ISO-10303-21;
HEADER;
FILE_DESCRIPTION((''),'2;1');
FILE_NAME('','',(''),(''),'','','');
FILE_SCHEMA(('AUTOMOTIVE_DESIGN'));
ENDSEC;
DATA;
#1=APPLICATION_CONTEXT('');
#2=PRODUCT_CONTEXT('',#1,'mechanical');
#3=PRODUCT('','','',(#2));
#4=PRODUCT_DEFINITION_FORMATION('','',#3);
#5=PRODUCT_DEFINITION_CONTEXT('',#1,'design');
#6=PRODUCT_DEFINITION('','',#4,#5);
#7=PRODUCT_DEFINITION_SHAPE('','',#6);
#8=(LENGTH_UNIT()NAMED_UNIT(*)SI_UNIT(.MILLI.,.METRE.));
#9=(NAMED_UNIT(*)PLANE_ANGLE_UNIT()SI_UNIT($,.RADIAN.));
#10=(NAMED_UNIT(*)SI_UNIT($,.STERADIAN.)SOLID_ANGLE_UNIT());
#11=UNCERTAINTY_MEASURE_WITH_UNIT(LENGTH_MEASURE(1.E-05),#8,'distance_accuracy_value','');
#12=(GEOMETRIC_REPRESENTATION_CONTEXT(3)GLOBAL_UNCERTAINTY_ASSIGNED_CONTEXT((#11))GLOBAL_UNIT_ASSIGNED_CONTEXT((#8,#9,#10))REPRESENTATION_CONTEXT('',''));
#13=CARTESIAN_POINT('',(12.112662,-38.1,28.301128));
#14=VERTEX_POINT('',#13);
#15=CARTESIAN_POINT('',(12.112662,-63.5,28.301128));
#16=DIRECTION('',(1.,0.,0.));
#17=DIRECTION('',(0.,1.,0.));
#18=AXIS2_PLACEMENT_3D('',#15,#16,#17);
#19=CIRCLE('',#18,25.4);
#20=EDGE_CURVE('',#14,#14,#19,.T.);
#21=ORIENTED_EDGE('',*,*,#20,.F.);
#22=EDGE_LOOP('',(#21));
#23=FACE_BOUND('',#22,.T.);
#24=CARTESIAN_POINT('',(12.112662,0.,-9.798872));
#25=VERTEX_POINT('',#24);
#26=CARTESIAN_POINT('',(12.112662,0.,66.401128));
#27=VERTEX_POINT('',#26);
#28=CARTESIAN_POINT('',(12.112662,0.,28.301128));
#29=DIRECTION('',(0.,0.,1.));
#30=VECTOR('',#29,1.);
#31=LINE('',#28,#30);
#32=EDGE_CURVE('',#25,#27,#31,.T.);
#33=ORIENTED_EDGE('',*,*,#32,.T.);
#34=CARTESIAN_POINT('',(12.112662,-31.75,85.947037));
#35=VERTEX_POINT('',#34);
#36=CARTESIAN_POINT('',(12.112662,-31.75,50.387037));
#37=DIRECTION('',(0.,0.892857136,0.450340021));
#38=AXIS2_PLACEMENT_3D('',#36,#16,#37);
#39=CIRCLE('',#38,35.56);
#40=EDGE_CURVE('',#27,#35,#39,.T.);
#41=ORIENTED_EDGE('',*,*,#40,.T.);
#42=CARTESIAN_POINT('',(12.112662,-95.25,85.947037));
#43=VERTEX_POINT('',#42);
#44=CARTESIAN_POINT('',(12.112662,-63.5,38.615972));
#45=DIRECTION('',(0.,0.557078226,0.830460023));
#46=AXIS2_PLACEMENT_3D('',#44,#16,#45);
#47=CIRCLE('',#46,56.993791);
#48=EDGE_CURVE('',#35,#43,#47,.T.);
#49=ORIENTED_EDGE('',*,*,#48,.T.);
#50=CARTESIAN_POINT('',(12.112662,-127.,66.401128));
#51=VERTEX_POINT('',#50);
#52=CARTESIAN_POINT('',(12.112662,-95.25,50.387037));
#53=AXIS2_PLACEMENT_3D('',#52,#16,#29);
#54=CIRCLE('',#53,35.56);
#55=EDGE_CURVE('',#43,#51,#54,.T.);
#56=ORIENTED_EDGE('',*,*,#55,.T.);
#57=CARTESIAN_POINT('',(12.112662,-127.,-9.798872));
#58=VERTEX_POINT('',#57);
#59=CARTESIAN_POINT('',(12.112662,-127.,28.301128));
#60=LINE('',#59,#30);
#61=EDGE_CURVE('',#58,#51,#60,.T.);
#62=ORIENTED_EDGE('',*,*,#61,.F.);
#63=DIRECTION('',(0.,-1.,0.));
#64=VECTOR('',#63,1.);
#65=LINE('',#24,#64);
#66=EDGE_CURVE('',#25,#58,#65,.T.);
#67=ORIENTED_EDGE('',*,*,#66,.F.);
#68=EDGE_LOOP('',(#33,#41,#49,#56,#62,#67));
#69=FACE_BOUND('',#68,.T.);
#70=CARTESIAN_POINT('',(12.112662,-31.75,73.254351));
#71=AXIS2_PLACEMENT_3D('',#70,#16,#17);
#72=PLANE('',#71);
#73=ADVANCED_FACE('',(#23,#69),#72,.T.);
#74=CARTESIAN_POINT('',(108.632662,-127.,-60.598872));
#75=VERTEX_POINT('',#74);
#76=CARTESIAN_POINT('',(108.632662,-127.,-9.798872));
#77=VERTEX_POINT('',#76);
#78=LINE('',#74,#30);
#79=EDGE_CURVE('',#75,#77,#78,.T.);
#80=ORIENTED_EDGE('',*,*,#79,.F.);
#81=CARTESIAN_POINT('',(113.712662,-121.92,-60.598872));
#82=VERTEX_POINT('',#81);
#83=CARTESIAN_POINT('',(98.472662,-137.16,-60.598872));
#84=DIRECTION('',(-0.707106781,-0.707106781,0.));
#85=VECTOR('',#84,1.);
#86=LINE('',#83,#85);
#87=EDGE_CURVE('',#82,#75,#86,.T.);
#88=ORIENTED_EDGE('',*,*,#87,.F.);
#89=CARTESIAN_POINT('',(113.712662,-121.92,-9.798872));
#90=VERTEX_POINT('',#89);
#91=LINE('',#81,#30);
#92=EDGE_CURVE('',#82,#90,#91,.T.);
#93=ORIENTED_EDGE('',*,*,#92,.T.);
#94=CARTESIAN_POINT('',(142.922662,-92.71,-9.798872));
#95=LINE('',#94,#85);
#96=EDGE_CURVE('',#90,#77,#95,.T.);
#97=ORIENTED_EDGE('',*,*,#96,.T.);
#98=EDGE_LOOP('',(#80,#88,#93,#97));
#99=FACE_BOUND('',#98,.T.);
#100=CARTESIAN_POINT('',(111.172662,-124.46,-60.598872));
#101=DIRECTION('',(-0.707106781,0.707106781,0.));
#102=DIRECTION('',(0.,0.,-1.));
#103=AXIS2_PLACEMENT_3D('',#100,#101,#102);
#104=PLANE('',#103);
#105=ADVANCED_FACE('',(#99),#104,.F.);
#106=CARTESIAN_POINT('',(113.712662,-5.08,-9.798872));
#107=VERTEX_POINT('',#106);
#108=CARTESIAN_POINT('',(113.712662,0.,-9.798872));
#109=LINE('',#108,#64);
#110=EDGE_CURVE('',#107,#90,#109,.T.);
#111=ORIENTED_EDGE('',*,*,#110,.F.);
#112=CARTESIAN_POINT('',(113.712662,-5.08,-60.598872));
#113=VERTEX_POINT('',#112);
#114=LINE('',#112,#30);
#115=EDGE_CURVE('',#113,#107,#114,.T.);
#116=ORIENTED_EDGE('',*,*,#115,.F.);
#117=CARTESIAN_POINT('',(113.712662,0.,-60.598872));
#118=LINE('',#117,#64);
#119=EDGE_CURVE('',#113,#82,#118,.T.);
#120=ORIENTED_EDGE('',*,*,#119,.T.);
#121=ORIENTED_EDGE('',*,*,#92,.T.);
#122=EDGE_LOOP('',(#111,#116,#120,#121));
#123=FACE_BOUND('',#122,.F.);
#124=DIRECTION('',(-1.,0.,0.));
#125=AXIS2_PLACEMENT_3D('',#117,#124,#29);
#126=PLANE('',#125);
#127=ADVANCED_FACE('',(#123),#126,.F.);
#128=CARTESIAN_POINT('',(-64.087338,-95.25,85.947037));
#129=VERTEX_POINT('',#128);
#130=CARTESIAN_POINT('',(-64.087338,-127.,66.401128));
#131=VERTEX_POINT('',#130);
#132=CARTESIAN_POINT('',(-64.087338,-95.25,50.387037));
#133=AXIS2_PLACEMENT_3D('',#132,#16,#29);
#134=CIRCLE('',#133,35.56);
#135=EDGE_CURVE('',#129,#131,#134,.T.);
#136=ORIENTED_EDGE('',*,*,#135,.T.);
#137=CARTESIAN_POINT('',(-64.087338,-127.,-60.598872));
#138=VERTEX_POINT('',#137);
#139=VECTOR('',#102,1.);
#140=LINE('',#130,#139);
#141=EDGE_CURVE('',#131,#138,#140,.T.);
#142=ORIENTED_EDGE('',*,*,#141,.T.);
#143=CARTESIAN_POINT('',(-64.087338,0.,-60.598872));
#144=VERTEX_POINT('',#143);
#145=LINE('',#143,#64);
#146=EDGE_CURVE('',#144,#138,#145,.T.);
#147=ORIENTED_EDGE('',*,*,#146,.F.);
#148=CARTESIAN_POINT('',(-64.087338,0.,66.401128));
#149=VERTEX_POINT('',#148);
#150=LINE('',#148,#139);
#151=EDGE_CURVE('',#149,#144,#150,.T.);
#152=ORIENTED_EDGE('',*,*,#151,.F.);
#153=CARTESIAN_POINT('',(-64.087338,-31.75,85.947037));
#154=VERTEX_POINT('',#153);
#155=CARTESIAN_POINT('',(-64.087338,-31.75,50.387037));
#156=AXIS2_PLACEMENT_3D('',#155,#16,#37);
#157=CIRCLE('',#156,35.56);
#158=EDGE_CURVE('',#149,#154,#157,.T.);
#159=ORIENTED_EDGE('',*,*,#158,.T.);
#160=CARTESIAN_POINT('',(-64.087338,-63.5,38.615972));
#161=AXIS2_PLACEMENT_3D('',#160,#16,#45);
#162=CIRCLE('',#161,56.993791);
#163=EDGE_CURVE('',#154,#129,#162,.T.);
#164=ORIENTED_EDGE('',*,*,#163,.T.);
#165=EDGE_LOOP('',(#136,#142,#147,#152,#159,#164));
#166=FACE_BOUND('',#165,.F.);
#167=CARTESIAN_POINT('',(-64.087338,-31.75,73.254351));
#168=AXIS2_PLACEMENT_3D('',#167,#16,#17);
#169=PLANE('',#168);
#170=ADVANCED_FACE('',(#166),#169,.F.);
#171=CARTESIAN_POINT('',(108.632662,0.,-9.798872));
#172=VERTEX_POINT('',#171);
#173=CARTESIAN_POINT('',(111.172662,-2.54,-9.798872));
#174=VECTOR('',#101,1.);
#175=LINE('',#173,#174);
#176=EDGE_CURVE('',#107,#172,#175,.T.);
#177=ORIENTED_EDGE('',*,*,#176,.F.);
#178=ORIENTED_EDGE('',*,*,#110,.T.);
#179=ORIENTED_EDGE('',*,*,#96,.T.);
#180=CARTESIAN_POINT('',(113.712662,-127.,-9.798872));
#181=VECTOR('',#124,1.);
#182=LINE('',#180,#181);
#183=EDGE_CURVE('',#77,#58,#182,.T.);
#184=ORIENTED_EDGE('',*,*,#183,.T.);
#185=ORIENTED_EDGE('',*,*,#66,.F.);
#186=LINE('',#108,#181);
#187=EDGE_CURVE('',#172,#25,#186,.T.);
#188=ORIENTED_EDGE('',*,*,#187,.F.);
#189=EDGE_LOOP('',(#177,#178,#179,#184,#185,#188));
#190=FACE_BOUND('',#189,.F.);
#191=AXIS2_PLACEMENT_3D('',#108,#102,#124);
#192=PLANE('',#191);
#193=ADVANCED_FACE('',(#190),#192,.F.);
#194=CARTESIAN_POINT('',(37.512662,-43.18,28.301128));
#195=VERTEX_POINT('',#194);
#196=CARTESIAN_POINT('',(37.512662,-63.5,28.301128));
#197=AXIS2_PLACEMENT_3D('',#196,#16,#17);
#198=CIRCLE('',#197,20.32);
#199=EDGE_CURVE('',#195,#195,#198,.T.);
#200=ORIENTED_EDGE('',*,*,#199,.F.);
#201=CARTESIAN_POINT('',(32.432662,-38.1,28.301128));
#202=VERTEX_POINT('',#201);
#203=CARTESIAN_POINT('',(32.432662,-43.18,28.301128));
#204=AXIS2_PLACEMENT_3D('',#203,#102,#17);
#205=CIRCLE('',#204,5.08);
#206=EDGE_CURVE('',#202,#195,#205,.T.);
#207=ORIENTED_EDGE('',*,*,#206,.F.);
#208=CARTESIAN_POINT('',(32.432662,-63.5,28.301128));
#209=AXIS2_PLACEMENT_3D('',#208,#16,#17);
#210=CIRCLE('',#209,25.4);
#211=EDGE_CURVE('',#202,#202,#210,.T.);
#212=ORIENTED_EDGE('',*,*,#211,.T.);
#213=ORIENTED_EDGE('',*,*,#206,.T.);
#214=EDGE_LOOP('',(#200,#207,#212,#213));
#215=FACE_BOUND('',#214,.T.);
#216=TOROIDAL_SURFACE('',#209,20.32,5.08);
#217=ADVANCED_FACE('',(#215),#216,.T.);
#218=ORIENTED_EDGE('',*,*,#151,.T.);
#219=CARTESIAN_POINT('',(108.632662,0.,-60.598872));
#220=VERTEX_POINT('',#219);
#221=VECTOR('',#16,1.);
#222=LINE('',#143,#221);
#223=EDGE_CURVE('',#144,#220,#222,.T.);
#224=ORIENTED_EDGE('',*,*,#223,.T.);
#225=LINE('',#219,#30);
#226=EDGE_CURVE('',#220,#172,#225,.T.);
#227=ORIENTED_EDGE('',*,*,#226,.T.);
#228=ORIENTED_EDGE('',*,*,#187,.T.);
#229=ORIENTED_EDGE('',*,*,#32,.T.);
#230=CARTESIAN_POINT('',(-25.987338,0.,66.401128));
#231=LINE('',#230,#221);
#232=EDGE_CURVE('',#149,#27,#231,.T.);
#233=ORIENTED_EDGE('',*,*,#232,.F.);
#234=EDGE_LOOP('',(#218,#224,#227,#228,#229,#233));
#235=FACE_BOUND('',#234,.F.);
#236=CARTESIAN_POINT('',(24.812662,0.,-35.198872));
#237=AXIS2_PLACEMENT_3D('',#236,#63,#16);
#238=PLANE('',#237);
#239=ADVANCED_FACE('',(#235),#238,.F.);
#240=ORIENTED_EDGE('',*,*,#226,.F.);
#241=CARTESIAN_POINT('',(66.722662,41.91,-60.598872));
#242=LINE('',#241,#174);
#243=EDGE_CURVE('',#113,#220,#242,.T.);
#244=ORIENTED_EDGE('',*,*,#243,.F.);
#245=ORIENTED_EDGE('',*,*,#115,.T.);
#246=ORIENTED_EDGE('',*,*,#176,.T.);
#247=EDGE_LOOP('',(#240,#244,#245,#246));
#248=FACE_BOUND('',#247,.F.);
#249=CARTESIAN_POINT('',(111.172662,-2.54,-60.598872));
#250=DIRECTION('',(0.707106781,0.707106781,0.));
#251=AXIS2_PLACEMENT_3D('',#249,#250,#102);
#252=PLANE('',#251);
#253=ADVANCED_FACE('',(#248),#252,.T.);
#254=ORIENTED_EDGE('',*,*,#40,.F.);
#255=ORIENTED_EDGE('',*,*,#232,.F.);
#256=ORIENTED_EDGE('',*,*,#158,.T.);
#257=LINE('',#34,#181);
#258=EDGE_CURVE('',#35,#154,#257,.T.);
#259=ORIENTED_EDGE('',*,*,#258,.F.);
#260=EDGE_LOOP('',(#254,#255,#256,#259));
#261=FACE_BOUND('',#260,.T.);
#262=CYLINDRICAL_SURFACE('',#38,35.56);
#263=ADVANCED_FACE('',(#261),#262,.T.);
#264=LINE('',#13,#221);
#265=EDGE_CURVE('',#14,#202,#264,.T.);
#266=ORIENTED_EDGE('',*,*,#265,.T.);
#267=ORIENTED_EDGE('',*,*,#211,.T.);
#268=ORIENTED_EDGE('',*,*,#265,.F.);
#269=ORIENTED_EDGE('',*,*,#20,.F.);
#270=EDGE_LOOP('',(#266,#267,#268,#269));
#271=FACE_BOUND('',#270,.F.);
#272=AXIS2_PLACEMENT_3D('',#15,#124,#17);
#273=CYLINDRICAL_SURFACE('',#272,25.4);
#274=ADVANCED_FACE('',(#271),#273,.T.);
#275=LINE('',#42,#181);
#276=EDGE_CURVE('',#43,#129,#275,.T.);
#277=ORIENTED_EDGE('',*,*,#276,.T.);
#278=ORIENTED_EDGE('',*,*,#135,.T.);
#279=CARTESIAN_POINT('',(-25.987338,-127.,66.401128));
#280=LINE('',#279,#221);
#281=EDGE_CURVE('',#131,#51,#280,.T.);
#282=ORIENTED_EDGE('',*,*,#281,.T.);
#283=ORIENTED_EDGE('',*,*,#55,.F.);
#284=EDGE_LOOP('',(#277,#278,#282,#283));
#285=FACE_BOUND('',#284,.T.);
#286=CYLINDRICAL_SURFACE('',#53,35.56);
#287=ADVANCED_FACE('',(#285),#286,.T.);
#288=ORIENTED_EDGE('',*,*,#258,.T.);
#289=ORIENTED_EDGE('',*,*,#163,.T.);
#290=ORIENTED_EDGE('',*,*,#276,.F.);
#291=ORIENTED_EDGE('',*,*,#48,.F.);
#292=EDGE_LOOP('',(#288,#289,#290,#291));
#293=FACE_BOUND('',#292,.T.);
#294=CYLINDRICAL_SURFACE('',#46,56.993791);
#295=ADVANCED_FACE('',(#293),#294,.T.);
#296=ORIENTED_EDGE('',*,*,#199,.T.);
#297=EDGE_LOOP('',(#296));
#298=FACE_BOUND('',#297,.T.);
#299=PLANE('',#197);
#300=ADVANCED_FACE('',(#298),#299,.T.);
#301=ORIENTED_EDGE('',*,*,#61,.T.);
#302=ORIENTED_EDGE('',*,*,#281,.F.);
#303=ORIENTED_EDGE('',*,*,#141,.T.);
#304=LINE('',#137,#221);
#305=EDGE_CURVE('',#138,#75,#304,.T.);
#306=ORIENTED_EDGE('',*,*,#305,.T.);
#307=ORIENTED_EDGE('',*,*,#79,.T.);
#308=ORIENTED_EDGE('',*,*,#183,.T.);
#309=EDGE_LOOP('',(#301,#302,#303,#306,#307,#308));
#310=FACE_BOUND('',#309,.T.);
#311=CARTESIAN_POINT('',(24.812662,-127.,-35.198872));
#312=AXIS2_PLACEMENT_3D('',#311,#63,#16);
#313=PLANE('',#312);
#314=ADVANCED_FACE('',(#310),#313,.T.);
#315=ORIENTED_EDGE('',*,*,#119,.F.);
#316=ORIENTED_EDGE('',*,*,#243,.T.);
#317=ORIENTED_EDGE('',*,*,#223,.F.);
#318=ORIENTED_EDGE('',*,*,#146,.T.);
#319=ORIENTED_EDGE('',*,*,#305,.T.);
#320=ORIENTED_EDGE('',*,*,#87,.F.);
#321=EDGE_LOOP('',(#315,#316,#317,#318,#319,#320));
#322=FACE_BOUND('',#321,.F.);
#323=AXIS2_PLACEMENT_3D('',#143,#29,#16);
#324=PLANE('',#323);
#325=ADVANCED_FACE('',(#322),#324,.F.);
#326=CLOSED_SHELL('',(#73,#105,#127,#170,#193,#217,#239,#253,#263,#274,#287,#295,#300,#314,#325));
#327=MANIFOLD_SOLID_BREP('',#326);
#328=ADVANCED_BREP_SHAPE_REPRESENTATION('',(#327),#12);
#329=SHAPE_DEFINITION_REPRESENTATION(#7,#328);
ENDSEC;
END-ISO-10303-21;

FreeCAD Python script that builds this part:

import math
import FreeCAD as App
import Part
import Sketcher
from FreeCAD import Vector
Q = App.Units.Quantity


def edges_at(feature, points):
    """Names of the edges that pass closest to the given points."""
    edges = feature.Shape.Edges
    near = lambda p: min(range(len(edges)), key=lambda i: edges[i].distToShape(Part.Vertex(*p))[0])
    return sorted({f"Edge{near(p) + 1}" for p in points})


def add_polygon(sketch, points):
    """Adds a closed chain of lines whose ends are joined by coincident constraints."""
    first, n = sketch.GeometryCount, len(points)
    for a, b in zip(points, points[1:] + points[:1]):
        sketch.addGeometry(Part.LineSegment(App.Vector(*a, 0), App.Vector(*b, 0)), False)
    for i in range(n):
        sketch.addConstraint(Sketcher.Constraint("Coincident", first + i, 2, first + (i + 1) % n, 1))

doc = App.newDocument("Part")
body = doc.addObject("PartDesign::Body", "Body")

sketch1 = body.newObject("Sketcher::SketchObject", "Sketch")
sketch1.AttachmentSupport = (doc.getObject("XZ_Plane"), [""])
sketch1.MapMode = "FlatFace"
add_polygon(sketch1, [(-64, -61), (114, -61), (114, -10), (12, -10), (12, 66), (-64, 66)])
sketch1.addConstraint(Sketcher.Constraint("Horizontal", 0))
sketch1.addConstraint(Sketcher.Constraint("Vertical", 1))
sketch1.addConstraint(Sketcher.Constraint("Horizontal", 2))
sketch1.addConstraint(Sketcher.Constraint("Vertical", 3))
sketch1.addConstraint(Sketcher.Constraint("Horizontal", 4))
sketch1.addConstraint(Sketcher.Constraint("Vertical", 5))
sketch1.addConstraint(Sketcher.Constraint("Equal", 4, 3))
sketch1.addConstraint(Sketcher.Constraint("DistanceX", 0, 1, 0, 2, Q("7 in")))
sketch1.addConstraint(Sketcher.Constraint("DistanceX", 2, 2, 2, 1, Q("4 in")))
sketch1.addConstraint(Sketcher.Constraint("DistanceY", 1, 1, 1, 2, Q("2 in")))
sketch1.addConstraint(Sketcher.Constraint("DistanceX", -1, 1, 0, 2, 113.712662))
sketch1.addConstraint(Sketcher.Constraint("DistanceY", 1, 2, -1, 1, 9.798872))
pad1 = body.newObject("PartDesign::Pad", "Pad")
pad1.Profile = sketch1
pad1.Length = Q("5 in")
doc.recompute()

chamfer = body.newObject("PartDesign::Chamfer", "Chamfer")
chamfer.Base = (pad1, edges_at(pad1, [(113.713, -127, -35.199), (113.713, 0, -35.199)]))
chamfer.Size = Q("0.2 in")

sketch2 = body.newObject("Sketcher::SketchObject", "Sketch001")
sketch2.AttachmentSupport = (doc.getObject("YZ_Plane"), [""])
sketch2.MapMode = "FlatFace"
sketch2.AttachmentOffset = App.Placement(Vector(0, 0, 12.112662), App.Rotation())
sketch2.addGeometry(Part.Circle(Vector(-64, 28, 0), Vector(0, 0, 1), 25), False)
sketch2.addConstraint(Sketcher.Constraint("Diameter", 0, Q("2 in")))
sketch2.addConstraint(Sketcher.Constraint("DistanceX", 0, 3, -1, 1, Q("2.5 in")))
sketch2.addConstraint(Sketcher.Constraint("DistanceY", -1, 1, 0, 3, 28.301128))
pad2 = body.newObject("PartDesign::Pad", "Pad001")
pad2.Profile = sketch2
pad2.Length = Q("1 in")
doc.recompute()

fillet = body.newObject("PartDesign::Fillet", "Fillet")
fillet.Base = (pad2, edges_at(pad2, [(37.513, -88.9, 28.301)]))
fillet.Radius = Q("0.2 in")

sketch3 = body.newObject("Sketcher::SketchObject", "Sketch002")
sketch3.AttachmentSupport = (doc.getObject("YZ_Plane"), [""])
sketch3.MapMode = "FlatFace"
sketch3.AttachmentOffset = App.Placement(Vector(0, 0, 12.112662), App.Rotation())
sketch3.addGeometry(Part.ArcOfCircle(Part.Circle(Vector(-32, 50, 0), Vector(0, 0, 1), 36), math.radians(27), math.radians(90)), False)
sketch3.addGeometry(Part.ArcOfCircle(Part.Circle(Vector(-64, 39, 0), Vector(0, 0, 1), 57), math.radians(56), math.radians(124)), False)
sketch3.addGeometry(Part.ArcOfCircle(Part.Circle(Vector(-95, 50, 0), Vector(0, 0, 1), 36), math.radians(90), math.radians(153)), False)
sketch3.addGeometry(Part.LineSegment(Vector(-127, 66, 0), Vector(0, 66, 0)), False)
sketch3.addConstraint(Sketcher.Constraint("Coincident", 0, 2, 1, 1))
sketch3.addConstraint(Sketcher.Constraint("Coincident", 1, 2, 2, 1))
sketch3.addConstraint(Sketcher.Constraint("Coincident", 2, 2, 3, 1))
sketch3.addConstraint(Sketcher.Constraint("Coincident", 3, 2, 0, 1))
sketch3.addConstraint(Sketcher.Constraint("Horizontal", 3))
sketch3.addConstraint(Sketcher.Constraint("Equal", 0, 2))
sketch3.addConstraint(Sketcher.Constraint("PointOnObject", 3, 2, -2))
sketch3.addConstraint(Sketcher.Constraint("Horizontal", 0, 3, 2, 3))
sketch3.addConstraint(Sketcher.Constraint("Vertical", 2, 3, 1, 2))
sketch3.addConstraint(Sketcher.Constraint("Radius", 0, Q("1.4 in")))
sketch3.addConstraint(Sketcher.Constraint("DistanceX", 3, 1, 3, 2, Q("5 in")))
sketch3.addConstraint(Sketcher.Constraint("DistanceX", 1, 3, -1, 1, Q("2.5 in")))
sketch3.addConstraint(Sketcher.Constraint("DistanceX", 2, 3, 0, 3, Q("2.5 in")))
sketch3.addConstraint(Sketcher.Constraint("Radius", 1, 56.993791))
sketch3.addConstraint(Sketcher.Constraint("DistanceY", -1, 1, 1, 3, 38.615972))
pad3 = body.newObject("PartDesign::Pad", "Pad002")
pad3.Profile = sketch3
pad3.Length = Q("3 in")
pad3.Reversed = True

doc.recompute()
